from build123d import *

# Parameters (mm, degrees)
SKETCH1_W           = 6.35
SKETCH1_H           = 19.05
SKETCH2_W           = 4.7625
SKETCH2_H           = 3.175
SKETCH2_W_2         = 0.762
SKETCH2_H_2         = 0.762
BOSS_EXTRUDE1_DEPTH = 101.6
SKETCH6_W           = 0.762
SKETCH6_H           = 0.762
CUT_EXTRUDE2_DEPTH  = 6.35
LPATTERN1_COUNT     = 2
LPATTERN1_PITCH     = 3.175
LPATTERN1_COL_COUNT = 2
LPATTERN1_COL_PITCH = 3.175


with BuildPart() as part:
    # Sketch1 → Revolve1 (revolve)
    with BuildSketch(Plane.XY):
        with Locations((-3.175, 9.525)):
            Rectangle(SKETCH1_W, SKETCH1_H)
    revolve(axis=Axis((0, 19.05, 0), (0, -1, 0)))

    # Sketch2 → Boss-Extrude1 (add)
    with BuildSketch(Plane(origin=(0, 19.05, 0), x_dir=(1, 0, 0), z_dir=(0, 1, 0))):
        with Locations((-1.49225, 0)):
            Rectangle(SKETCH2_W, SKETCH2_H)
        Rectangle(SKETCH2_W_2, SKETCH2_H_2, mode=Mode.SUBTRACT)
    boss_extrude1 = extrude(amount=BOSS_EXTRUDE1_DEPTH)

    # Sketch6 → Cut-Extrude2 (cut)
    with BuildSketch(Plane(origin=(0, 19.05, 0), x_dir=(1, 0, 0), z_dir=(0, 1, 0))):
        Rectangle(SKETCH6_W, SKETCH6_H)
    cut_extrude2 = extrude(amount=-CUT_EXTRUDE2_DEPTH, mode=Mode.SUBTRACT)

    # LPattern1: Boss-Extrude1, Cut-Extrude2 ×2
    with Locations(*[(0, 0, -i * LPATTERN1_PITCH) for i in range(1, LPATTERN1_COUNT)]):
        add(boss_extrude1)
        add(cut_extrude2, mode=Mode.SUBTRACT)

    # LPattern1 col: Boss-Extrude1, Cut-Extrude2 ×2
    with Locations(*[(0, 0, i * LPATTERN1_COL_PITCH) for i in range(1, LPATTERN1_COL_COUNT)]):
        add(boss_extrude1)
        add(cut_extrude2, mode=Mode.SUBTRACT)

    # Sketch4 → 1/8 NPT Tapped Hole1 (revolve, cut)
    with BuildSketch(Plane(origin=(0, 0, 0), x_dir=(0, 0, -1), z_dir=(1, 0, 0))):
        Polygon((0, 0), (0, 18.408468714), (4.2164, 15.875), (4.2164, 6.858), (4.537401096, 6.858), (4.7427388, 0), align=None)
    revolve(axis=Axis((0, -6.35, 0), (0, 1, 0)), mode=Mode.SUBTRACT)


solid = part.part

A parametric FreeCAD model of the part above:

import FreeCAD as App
import Part
import Sketcher
Q = App.Units.Quantity

doc = App.newDocument("Part")
body = doc.addObject("PartDesign::Body", "Body")

# Sketch on XY plane
sketch1 = body.newObject("Sketcher::SketchObject", "Sketch")
sketch1.AttachmentSupport = (doc.getObject("XY_Plane"), [""])
sketch1.MapMode = "FlatFace"
sketch1.addGeometry(Part.LineSegment(App.Vector(-6, 19, 0), App.Vector(-6, 0, 0)), False)
sketch1.addGeometry(Part.LineSegment(App.Vector(-6, 0, 0), App.Vector(0, 0, 0)), False)
sketch1.addGeometry(Part.LineSegment(App.Vector(0, 0, 0), App.Vector(0, 19, 0)), False)
sketch1.addGeometry(Part.LineSegment(App.Vector(0, 19, 0), App.Vector(-6, 19, 0)), False)
sketch1.addConstraint(Sketcher.Constraint("Coincident", 0, 2, 1, 1))
sketch1.addConstraint(Sketcher.Constraint("Coincident", 1, 2, 2, 1))
sketch1.addConstraint(Sketcher.Constraint("Coincident", 2, 2, 3, 1))
sketch1.addConstraint(Sketcher.Constraint("Coincident", 3, 2, 0, 1))
sketch1.addConstraint(Sketcher.Constraint("Vertical", 0))
sketch1.addConstraint(Sketcher.Constraint("Horizontal", 1))
sketch1.addConstraint(Sketcher.Constraint("Vertical", 2))
sketch1.addConstraint(Sketcher.Constraint("Horizontal", 3))
sketch1.addConstraint(Sketcher.Constraint("Coincident", 1, 2, -1, 1))
sketch1.addConstraint(Sketcher.Constraint("DistanceX", 1, 1, 1, 2, Q("0.25 in")))
sketch1.addConstraint(Sketcher.Constraint("DistanceY", 0, 2, 0, 1, Q("0.75 in")))
revolution = body.newObject("PartDesign::Revolution", "Revolution")
revolution.Profile = sketch1
revolution.ReferenceAxis = (sketch1, ["V_Axis"])
revolution.Angle = 360

# Sketch on XZ plane
sketch2 = body.newObject("Sketcher::SketchObject", "Sketch001")
sketch2.AttachmentSupport = (doc.getObject("XZ_Plane"), [""])
sketch2.MapMode = "FlatFace"
sketch2.AttachmentOffset = App.Placement(App.Vector(0, 0, -0.75 * 25.4), App.Rotation())
sketch2.addGeometry(Part.LineSegment(App.Vector(-3.9, -1.6, 0), App.Vector(-3.9, 1.6, 0)), False)
sketch2.addGeometry(Part.LineSegment(App.Vector(-3.9, 1.6, 0), App.Vector(0.9, 1.6, 0)), False)
sketch2.addGeometry(Part.LineSegment(App.Vector(0.9, 1.6, 0), App.Vector(0.9, -1.6, 0)), False)
sketch2.addGeometry(Part.LineSegment(App.Vector(0.9, -1.6, 0), App.Vector(-3.9, -1.6, 0)), False)
sketch2.addGeometry(Part.LineSegment(App.Vector(0.4, 0.4, 0), App.Vector(-0.4, 0.4, 0)), False)
sketch2.addGeometry(Part.LineSegment(App.Vector(-0.4, 0.4, 0), App.Vector(-0.4, -0.4, 0)), False)
sketch2.addGeometry(Part.LineSegment(App.Vector(-0.4, -0.4, 0), App.Vector(0.4, -0.4, 0)), False)
sketch2.addGeometry(Part.LineSegment(App.Vector(0.4, -0.4, 0), App.Vector(0.4, 0.4, 0)), False)
sketch2.addConstraint(Sketcher.Constraint("Coincident", 0, 2, 1, 1))
sketch2.addConstraint(Sketcher.Constraint("Coincident", 1, 2, 2, 1))
sketch2.addConstraint(Sketcher.Constraint("Coincident", 2, 2, 3, 1))
sketch2.addConstraint(Sketcher.Constraint("Coincident", 3, 2, 0, 1))
sketch2.addConstraint(Sketcher.Constraint("Coincident", 4, 2, 5, 1))
sketch2.addConstraint(Sketcher.Constraint("Coincident", 5, 2, 6, 1))
sketch2.addConstraint(Sketcher.Constraint("Coincident", 6, 2, 7, 1))
sketch2.addConstraint(Sketcher.Constraint("Coincident", 7, 2, 4, 1))
sketch2.addConstraint(Sketcher.Constraint("Vertical", 0))
sketch2.addConstraint(Sketcher.Constraint("Horizontal", 1))
sketch2.addConstraint(Sketcher.Constraint("Vertical", 2))
sketch2.addConstraint(Sketcher.Constraint("Horizontal", 3))
sketch2.addConstraint(Sketcher.Constraint("Horizontal", 4))
sketch2.addConstraint(Sketcher.Constraint("Vertical", 5))
sketch2.addConstraint(Sketcher.Constraint("Horizontal", 6))
sketch2.addConstraint(Sketcher.Constraint("Vertical", 7))
sketch2.addConstraint(Sketcher.Constraint("Symmetric", 4, 2, 6, 2, -1, 1))
sketch2.addConstraint(Sketcher.Constraint("Equal", 6, 5))
sketch2.addConstraint(Sketcher.Constraint("DistanceX", 4, 2, 4, 1, Q("0.03 in")))
sketch2.addConstraint(Sketcher.Constraint("DistanceX", 1, 1, 1, 2, Q("0.1875 in")))
sketch2.addConstraint(Sketcher.Constraint("DistanceY", 0, 1, 0, 2, Q("0.125 in")))
sketch2.addConstraint(Sketcher.Constraint("DistanceX", 4, 2, 1, 2, Q("0.05 in")))
sketch2.addConstraint(Sketcher.Constraint("DistanceY", -1, 1, 0, 2, Q("0.0625 in")))
pad1 = body.newObject("PartDesign::Pad", "Pad")
pad1.Profile = sketch2
pad1.Length = Q("4 in")
pad1.Reversed = True

# Sketch on XZ plane
sketch3 = body.newObject("Sketcher::SketchObject", "Sketch002")
sketch3.AttachmentSupport = (doc.getObject("XZ_Plane"), [""])
sketch3.MapMode = "FlatFace"
sketch3.AttachmentOffset = App.Placement(App.Vector(0, 0, -0.75 * 25.4), App.Rotation())
sketch3.addGeometry(Part.LineSegment(App.Vector(-0.4, -0.4, 0), App.Vector(-0.4, 0.4, 0)), False)
sketch3.addGeometry(Part.LineSegment(App.Vector(-0.4, 0.4, 0), App.Vector(0.4, 0.4, 0)), False)
sketch3.addGeometry(Part.LineSegment(App.Vector(0.4, 0.4, 0), App.Vector(0.4, -0.4, 0)), False)
sketch3.addGeometry(Part.LineSegment(App.Vector(0.4, -0.4, 0), App.Vector(-0.4, -0.4, 0)), False)
sketch3.addConstraint(Sketcher.Constraint("Coincident", 0, 2, 1, 1))
sketch3.addConstraint(Sketcher.Constraint("Coincident", 1, 2, 2, 1))
sketch3.addConstraint(Sketcher.Constraint("Coincident", 2, 2, 3, 1))
sketch3.addConstraint(Sketcher.Constraint("Coincident", 3, 2, 0, 1))
sketch3.addConstraint(Sketcher.Constraint("Vertical", 0))
sketch3.addConstraint(Sketcher.Constraint("Horizontal", 1))
sketch3.addConstraint(Sketcher.Constraint("Vertical", 2))
sketch3.addConstraint(Sketcher.Constraint("Horizontal", 3))
sketch3.addConstraint(Sketcher.Constraint("Symmetric", 0, 2, 2, 2, -1, 1))
sketch3.addConstraint(Sketcher.Constraint("Equal", 3, 0))
sketch3.addConstraint(Sketcher.Constraint("DistanceX", 1, 1, 1, 2, Q("0.03 in")))
pocket1 = body.newObject("PartDesign::Pocket", "Pocket")
pocket1.Profile = sketch3
pocket1.Length = Q("0.25 in")
pocket1.Reversed = True
doc.recompute()

linearpattern = body.newObject("PartDesign::LinearPattern", "LinearPattern")
linearpattern.Originals = [pad1, pocket1]
linearpattern.Direction = (doc.getObject("Z_Axis"), [""])
linearpattern.Mode = "offset"
linearpattern.Offset = Q("0.125 in")
linearpattern.Occurrences = 2
linearpattern.Reversed = True
body.Tip = linearpattern
doc.recompute()

linearpattern2 = body.newObject("PartDesign::LinearPattern", "LinearPattern001")
linearpattern2.Originals = [pad1, pocket1]
linearpattern2.Direction = (doc.getObject("Z_Axis"), [""])
linearpattern2.Mode = "offset"
linearpattern2.Offset = Q("0.125 in")
linearpattern2.Occurrences = 2
body.Tip = linearpattern2

# Sketch on YZ plane
sketch4 = body.newObject("Sketcher::SketchObject", "Sketch003")
sketch4.AttachmentSupport = (doc.getObject("YZ_Plane"), [""])
sketch4.MapMode = "FlatFace"
sketch4.addGeometry(Part.LineSegment(App.Vector(18.41, 0, 0), App.Vector(0, 0, 0)), False)
sketch4.addGeometry(Part.LineSegment(App.Vector(0, 0, 0), App.Vector(0, -4.74, 0)), False)
sketch4.addGeometry(Part.LineSegment(App.Vector(0, -4.74, 0), App.Vector(6.86, -4.54, 0)), False)
sketch4.addGeometry(Part.LineSegment(App.Vector(6.86, -4.54, 0), App.Vector(6.86, -4.22, 0)), False)
sketch4.addGeometry(Part.LineSegment(App.Vector(6.86, -4.22, 0), App.Vector(15.88, -4.22, 0)), False)
sketch4.addGeometry(Part.LineSegment(App.Vector(15.88, -4.22, 0), App.Vector(18.41, 0, 0)), False)
sketch4.addConstraint(Sketcher.Constraint("Coincident", 0, 2, 1, 1))
sketch4.addConstraint(Sketcher.Constraint("Coincident", 1, 2, 2, 1))
sketch4.addConstraint(Sketcher.Constraint("Coincident", 2, 2, 3, 1))
sketch4.addConstraint(Sketcher.Constraint("Coincident", 3, 2, 4, 1))
sketch4.addConstraint(Sketcher.Constraint("Coincident", 4, 2, 5, 1))
sketch4.addConstraint(Sketcher.Constraint("Coincident", 5, 2, 0, 1))
sketch4.addConstraint(Sketcher.Constraint("Horizontal", 0))
sketch4.addConstraint(Sketcher.Constraint("Vertical", 1))
sketch4.addConstraint(Sketcher.Constraint("Vertical", 3))
sketch4.addConstraint(Sketcher.Constraint("Horizontal", 4))
sketch4.addConstraint(Sketcher.Constraint("Coincident", 0, 2, -1, 1))
sketch4.addConstraint(Sketcher.Constraint("Angle", 5, Q("59 deg")))
sketch4.addConstraint(Sketcher.Constraint("DistanceX", 4, 1, 4, 2, Q("0.355 in")))
sketch4.addConstraint(Sketcher.Constraint("DistanceX", -1, 1, 2, 2, Q("0.27 in")))
sketch4.addConstraint(Sketcher.Constraint("DistanceY", 3, 2, -1, 1, Q("0.166 in")))
sketch4.addConstraint(Sketcher.Constraint("DistanceY", 3, 1, 3, 2, 0.321001))
sketch4.addConstraint(Sketcher.Constraint("DistanceY", 1, 2, 1, 1, 4.742739))
groove = body.newObject("PartDesign::Groove", "Groove")
groove.Profile = sketch4
groove.ReferenceAxis = (sketch4, ["H_Axis"])
groove.Angle = 360

doc.recompute()
